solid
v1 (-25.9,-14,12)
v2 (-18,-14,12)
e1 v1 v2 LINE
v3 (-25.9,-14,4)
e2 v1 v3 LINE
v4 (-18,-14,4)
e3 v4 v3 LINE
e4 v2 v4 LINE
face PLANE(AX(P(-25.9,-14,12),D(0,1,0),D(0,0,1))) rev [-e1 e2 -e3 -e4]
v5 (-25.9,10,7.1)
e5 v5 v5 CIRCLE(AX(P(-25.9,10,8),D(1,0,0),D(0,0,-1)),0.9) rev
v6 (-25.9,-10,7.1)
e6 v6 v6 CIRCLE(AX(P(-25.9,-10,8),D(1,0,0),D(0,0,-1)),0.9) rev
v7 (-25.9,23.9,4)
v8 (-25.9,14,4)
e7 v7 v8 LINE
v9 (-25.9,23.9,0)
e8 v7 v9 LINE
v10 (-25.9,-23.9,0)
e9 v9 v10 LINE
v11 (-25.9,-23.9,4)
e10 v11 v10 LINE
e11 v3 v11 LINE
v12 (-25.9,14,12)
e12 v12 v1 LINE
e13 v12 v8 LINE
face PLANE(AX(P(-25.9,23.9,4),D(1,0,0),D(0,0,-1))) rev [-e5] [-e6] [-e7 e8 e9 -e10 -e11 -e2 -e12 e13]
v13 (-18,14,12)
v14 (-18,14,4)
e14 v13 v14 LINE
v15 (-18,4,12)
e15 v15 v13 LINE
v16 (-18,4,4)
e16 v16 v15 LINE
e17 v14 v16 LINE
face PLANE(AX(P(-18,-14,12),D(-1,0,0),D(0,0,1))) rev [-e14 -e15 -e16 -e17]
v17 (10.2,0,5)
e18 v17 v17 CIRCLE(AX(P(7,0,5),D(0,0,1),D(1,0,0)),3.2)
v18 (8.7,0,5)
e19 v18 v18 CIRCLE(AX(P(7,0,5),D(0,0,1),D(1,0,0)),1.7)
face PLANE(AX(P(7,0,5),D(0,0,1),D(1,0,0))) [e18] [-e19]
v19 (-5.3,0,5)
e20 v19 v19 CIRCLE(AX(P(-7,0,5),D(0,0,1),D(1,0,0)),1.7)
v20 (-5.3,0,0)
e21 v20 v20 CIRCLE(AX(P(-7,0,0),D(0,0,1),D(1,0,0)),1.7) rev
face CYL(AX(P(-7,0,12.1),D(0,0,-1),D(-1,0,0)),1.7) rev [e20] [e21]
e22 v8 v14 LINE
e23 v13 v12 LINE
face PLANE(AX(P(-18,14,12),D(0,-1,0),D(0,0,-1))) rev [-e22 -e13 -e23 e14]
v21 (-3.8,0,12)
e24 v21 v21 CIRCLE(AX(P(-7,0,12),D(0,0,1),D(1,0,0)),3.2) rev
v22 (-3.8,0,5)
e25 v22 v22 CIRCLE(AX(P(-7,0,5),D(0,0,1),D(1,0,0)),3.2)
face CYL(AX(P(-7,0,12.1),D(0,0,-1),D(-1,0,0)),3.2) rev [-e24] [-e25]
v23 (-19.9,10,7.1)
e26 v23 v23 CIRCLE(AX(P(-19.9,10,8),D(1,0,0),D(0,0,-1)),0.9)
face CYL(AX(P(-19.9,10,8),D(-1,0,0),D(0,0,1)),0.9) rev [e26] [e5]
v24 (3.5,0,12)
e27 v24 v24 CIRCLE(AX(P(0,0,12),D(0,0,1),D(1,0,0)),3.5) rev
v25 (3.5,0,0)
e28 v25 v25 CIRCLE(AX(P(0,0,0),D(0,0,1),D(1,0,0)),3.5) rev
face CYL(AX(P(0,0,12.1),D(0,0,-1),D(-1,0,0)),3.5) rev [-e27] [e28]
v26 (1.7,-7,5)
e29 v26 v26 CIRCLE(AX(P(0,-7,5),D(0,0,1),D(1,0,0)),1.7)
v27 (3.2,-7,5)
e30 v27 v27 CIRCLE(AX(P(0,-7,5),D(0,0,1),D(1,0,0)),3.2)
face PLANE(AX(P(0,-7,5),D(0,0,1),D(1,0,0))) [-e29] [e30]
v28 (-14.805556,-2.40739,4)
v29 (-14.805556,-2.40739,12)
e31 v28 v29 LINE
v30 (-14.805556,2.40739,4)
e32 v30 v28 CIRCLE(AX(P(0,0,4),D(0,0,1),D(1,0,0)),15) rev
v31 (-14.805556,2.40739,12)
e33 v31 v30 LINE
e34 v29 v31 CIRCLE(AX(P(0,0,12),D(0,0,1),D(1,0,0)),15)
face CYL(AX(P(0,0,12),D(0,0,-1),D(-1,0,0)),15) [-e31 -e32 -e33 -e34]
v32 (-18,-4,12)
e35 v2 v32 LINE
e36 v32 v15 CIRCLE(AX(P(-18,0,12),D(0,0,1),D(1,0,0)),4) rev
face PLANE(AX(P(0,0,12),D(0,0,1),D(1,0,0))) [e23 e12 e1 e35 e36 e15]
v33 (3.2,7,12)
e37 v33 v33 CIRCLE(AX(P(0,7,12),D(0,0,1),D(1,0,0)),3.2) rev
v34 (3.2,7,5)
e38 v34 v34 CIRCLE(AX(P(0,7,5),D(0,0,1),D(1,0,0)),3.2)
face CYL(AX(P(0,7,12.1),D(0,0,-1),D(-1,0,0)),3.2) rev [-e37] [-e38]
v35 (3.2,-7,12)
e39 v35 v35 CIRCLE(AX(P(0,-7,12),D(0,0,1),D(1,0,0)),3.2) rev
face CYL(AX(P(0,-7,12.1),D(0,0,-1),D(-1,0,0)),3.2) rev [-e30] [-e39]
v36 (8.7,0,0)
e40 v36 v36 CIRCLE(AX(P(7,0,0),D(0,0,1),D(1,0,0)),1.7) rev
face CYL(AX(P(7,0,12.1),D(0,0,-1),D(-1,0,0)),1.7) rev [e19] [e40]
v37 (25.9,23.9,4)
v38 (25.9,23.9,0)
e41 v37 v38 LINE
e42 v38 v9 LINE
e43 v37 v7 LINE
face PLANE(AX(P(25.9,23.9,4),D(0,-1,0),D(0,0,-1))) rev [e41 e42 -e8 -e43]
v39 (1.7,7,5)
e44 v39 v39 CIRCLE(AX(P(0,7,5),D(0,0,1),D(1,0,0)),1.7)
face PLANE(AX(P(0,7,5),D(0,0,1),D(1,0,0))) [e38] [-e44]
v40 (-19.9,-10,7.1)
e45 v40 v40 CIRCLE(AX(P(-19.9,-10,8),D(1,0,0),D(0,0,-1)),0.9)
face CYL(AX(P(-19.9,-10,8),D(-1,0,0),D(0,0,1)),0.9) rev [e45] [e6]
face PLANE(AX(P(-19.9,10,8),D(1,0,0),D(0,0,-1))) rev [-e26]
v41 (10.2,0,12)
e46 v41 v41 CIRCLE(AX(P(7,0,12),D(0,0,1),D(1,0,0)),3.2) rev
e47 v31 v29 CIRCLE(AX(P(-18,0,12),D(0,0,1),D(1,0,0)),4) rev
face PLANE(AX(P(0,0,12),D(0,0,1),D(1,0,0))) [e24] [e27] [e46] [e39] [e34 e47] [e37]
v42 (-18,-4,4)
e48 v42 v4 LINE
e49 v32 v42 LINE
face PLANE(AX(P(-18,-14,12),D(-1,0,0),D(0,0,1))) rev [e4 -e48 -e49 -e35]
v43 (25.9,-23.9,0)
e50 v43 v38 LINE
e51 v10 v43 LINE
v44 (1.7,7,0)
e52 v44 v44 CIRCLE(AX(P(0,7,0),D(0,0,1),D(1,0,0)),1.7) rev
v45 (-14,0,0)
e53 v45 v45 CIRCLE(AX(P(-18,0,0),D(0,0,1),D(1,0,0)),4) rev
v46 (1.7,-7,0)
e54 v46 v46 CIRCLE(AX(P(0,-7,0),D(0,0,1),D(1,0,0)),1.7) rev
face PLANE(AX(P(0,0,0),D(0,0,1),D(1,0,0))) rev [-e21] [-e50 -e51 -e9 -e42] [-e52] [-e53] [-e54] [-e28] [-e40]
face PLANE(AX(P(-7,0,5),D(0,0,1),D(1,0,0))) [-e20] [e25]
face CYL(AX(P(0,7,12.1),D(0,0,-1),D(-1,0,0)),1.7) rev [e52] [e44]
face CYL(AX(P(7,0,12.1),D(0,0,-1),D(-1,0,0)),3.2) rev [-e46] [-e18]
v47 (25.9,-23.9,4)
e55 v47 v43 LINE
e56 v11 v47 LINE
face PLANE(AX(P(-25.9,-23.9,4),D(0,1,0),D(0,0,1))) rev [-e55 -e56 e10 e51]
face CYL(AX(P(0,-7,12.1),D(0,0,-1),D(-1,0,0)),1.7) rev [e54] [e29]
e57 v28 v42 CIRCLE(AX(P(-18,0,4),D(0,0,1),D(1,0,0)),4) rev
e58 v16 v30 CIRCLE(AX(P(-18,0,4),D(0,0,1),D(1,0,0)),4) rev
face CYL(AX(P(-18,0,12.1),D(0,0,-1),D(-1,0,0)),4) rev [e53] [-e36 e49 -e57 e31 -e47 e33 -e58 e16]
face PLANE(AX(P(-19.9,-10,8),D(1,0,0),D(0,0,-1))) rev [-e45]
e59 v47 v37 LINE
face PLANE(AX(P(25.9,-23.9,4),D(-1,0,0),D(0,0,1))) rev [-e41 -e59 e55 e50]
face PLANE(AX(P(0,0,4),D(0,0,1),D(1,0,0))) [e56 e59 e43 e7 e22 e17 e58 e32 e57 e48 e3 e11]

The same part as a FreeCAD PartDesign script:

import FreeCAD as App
import Part
import Sketcher

doc = App.newDocument("Part")
body = doc.addObject("PartDesign::Body", "Body")

sketch1 = body.newObject("Sketcher::SketchObject", "Sketch")
sketch1.AttachmentSupport = (doc.getObject("XY_Plane"), [""])
sketch1.MapMode = "FlatFace"
sketch1.addGeometry(Part.LineSegment(App.Vector(-26, 24, 0), App.Vector(-26, -24, 0)), False)
sketch1.addGeometry(Part.LineSegment(App.Vector(-26, -24, 0), App.Vector(26, -24, 0)), False)
sketch1.addGeometry(Part.LineSegment(App.Vector(26, -24, 0), App.Vector(26, 24, 0)), False)
sketch1.addGeometry(Part.LineSegment(App.Vector(26, 24, 0), App.Vector(-26, 24, 0)), False)
sketch1.addConstraint(Sketcher.Constraint("Coincident", 0, 2, 1, 1))
sketch1.addConstraint(Sketcher.Constraint("Coincident", 1, 2, 2, 1))
sketch1.addConstraint(Sketcher.Constraint("Coincident", 2, 2, 3, 1))
sketch1.addConstraint(Sketcher.Constraint("Coincident", 3, 2, 0, 1))
sketch1.addConstraint(Sketcher.Constraint("Vertical", 0))
sketch1.addConstraint(Sketcher.Constraint("Horizontal", 1))
sketch1.addConstraint(Sketcher.Constraint("Vertical", 2))
sketch1.addConstraint(Sketcher.Constraint("Horizontal", 3))
sketch1.addConstraint(Sketcher.Constraint("Symmetric", 0, 2, 2, 2, -1, 1))
sketch1.addConstraint(Sketcher.Constraint("DistanceX", 1, 1, 1, 2, 51.8))
sketch1.addConstraint(Sketcher.Constraint("DistanceY", 0, 2, 0, 1, 47.8))
pad1 = body.newObject("PartDesign::Pad", "Pad")
pad1.Profile = sketch1
pad1.Length = 4

sketch2 = body.newObject("Sketcher::SketchObject", "Sketch001")
sketch2.AttachmentSupport = (doc.getObject("XY_Plane"), [""])
sketch2.MapMode = "FlatFace"
sketch2.AttachmentOffset = App.Placement(App.Vector(0, 0, 3.9), App.Rotation())
sketch2.addGeometry(Part.Circle(App.Vector(0, 0, 0), App.Vector(0, 0, 1), 15), False)
sketch2.addConstraint(Sketcher.Constraint("Coincident", 0, 3, -1, 1))
sketch2.addConstraint(Sketcher.Constraint("Diameter", 0, 30.0))
pad2 = body.newObject("PartDesign::Pad", "Pad001")
pad2.Profile = sketch2
pad2.Length = 8.1

sketch3 = body.newObject("Sketcher::SketchObject", "Sketch002")
sketch3.AttachmentSupport = (doc.getObject("XY_Plane"), [""])
sketch3.MapMode = "FlatFace"
sketch3.AttachmentOffset = App.Placement(App.Vector(0, 0, 3.9), App.Rotation())
sketch3.addGeometry(Part.LineSegment(App.Vector(-26, 14, 0), App.Vector(-26, -14, 0)), False)
sketch3.addGeometry(Part.LineSegment(App.Vector(-26, -14, 0), App.Vector(-18, -14, 0)), False)
sketch3.addGeometry(Part.LineSegment(App.Vector(-18, -14, 0), App.Vector(-18, 14, 0)), False)
sketch3.addGeometry(Part.LineSegment(App.Vector(-18, 14, 0), App.Vector(-26, 14, 0)), False)
sketch3.addConstraint(Sketcher.Constraint("Coincident", 0, 2, 1, 1))
sketch3.addConstraint(Sketcher.Constraint("Coincident", 1, 2, 2, 1))
sketch3.addConstraint(Sketcher.Constraint("Coincident", 2, 2, 3, 1))
sketch3.addConstraint(Sketcher.Constraint("Coincident", 3, 2, 0, 1))
sketch3.addConstraint(Sketcher.Constraint("Vertical", 0))
sketch3.addConstraint(Sketcher.Constraint("Horizontal", 1))
sketch3.addConstraint(Sketcher.Constraint("Vertical", 2))
sketch3.addConstraint(Sketcher.Constraint("Horizontal", 3))
sketch3.addConstraint(Sketcher.Constraint("DistanceY", 0, 2, 0, 1, 28.0))
sketch3.addConstraint(Sketcher.Constraint("DistanceX", 1, 1, 1, 2, 7.9))
sketch3.addConstraint(Sketcher.Constraint("DistanceY", 0, 2, -1, 1, 14.0))
sketch3.addConstraint(Sketcher.Constraint("DistanceX", 1, 2, -1, 1, 18.0))
pad3 = body.newObject("PartDesign::Pad", "Pad002")
pad3.Profile = sketch3
pad3.Length = 8.1

sketch4 = body.newObject("Sketcher::SketchObject", "Sketch003")
sketch4.AttachmentSupport = (doc.getObject("XY_Plane"), [""])
sketch4.MapMode = "FlatFace"
sketch4.AttachmentOffset = App.Placement(App.Vector(0, 0, -0.1), App.Rotation())
sketch4.addGeometry(Part.Circle(App.Vector(-18, 0, 0), App.Vector(0, 0, 1), 4), False)
sketch4.addConstraint(Sketcher.Constraint("PointOnObject", 0, 3, -1))
sketch4.addConstraint(Sketcher.Constraint("Diameter", 0, 8.0))
sketch4.addConstraint(Sketcher.Constraint("DistanceX", 0, 3, -1, 1, 18.0))
pocket1 = body.newObject("PartDesign::Pocket", "Pocket")
pocket1.Profile = sketch4
pocket1.Length = 12.2
pocket1.Reversed = True

sketch5 = body.newObject("Sketcher::SketchObject", "Sketch004")
sketch5.AttachmentSupport = (doc.getObject("XY_Plane"), [""])
sketch5.MapMode = "FlatFace"
sketch5.AttachmentOffset = App.Placement(App.Vector(0, 0, -0.1), App.Rotation())
sketch5.addGeometry(Part.Circle(App.Vector(0, 0, 0), App.Vector(0, 0, 1), 3.5), False)
sketch5.addConstraint(Sketcher.Constraint("Coincident", 0, 3, -1, 1))
sketch5.addConstraint(Sketcher.Constraint("Diameter", 0, 7.0))
pocket2 = body.newObject("PartDesign::Pocket", "Pocket001")
pocket2.Profile = sketch5
pocket2.Length = 12.2
pocket2.Reversed = True

sketch6 = body.newObject("Sketcher::SketchObject", "Sketch005")
sketch6.AttachmentSupport = (doc.getObject("XY_Plane"), [""])
sketch6.MapMode = "FlatFace"
sketch6.AttachmentOffset = App.Placement(App.Vector(0, 0, -0.1), App.Rotation())
sketch6.addGeometry(Part.Circle(App.Vector(7, 0, 0), App.Vector(0, 0, 1), 1.7), False)
sketch6.addConstraint(Sketcher.Constraint("PointOnObject", 0, 3, -1))
sketch6.addConstraint(Sketcher.Constraint("Diameter", 0, 3.4))
sketch6.addConstraint(Sketcher.Constraint("DistanceX", -1, 1, 0, 3, 7.0))
pocket3 = body.newObject("PartDesign::Pocket", "Pocket002")
pocket3.Profile = sketch6
pocket3.Length = 12.2
pocket3.Reversed = True

sketch7 = body.newObject("Sketcher::SketchObject", "Sketch006")
sketch7.AttachmentSupport = (doc.getObject("XY_Plane"), [""])
sketch7.MapMode = "FlatFace"
sketch7.AttachmentOffset = App.Placement(App.Vector(0, 0, -0.1), App.Rotation())
sketch7.addGeometry(Part.Circle(App.Vector(0, 7, 0), App.Vector(0, 0, 1), 1.7), False)
sketch7.addConstraint(Sketcher.Constraint("PointOnObject", 0, 3, -2))
sketch7.addConstraint(Sketcher.Constraint("Diameter", 0, 3.4))
sketch7.addConstraint(Sketcher.Constraint("DistanceY", -1, 1, 0, 3, 7.0))
pocket4 = body.newObject("PartDesign::Pocket", "Pocket003")
pocket4.Profile = sketch7
pocket4.Length = 12.2
pocket4.Reversed = True

sketch8 = body.newObject("Sketcher::SketchObject", "Sketch007")
sketch8.AttachmentSupport = (doc.getObject("XY_Plane"), [""])
sketch8.MapMode = "FlatFace"
sketch8.AttachmentOffset = App.Placement(App.Vector(0, 0, -0.1), App.Rotation())
sketch8.addGeometry(Part.Circle(App.Vector(-7, 0, 0), App.Vector(0, 0, 1), 1.7), False)
sketch8.addConstraint(Sketcher.Constraint("PointOnObject", 0, 3, -1))
sketch8.addConstraint(Sketcher.Constraint("Diameter", 0, 3.4))
sketch8.addConstraint(Sketcher.Constraint("DistanceX", 0, 3, -1, 1, 7.0))
pocket5 = body.newObject("PartDesign::Pocket", "Pocket004")
pocket5.Profile = sketch8
pocket5.Length = 12.2
pocket5.Reversed = True

sketch9 = body.newObject("Sketcher::SketchObject", "Sketch008")
sketch9.AttachmentSupport = (doc.getObject("XY_Plane"), [""])
sketch9.MapMode = "FlatFace"
sketch9.AttachmentOffset = App.Placement(App.Vector(0, 0, -0.1), App.Rotation())
sketch9.addGeometry(Part.Circle(App.Vector(0, -7, 0), App.Vector(0, 0, 1), 1.7), False)
sketch9.addConstraint(Sketcher.Constraint("PointOnObject", 0, 3, -2))
sketch9.addConstraint(Sketcher.Constraint("Diameter", 0, 3.4))
sketch9.addConstraint(Sketcher.Constraint("DistanceY", 0, 3, -1, 1, 7.0))
pocket6 = body.newObject("PartDesign::Pocket", "Pocket005")
pocket6.Profile = sketch9
pocket6.Length = 12.2
pocket6.Reversed = True

sketch10 = body.newObject("Sketcher::SketchObject", "Sketch009")
sketch10.AttachmentSupport = (doc.getObject("XY_Plane"), [""])
sketch10.MapMode = "FlatFace"
sketch10.AttachmentOffset = App.Placement(App.Vector(0, 0, 5), App.Rotation())
sketch10.addGeometry(Part.Circle(App.Vector(7, 0, 0), App.Vector(0, 0, 1), 3.2), False)
sketch10.addConstraint(Sketcher.Constraint("PointOnObject", 0, 3, -1))
sketch10.addConstraint(Sketcher.Constraint("Diameter", 0, 6.4))
sketch10.addConstraint(Sketcher.Constraint("DistanceX", -1, 1, 0, 3, 7.0))
pocket7 = body.newObject("PartDesign::Pocket", "Pocket006")
pocket7.Profile = sketch10
pocket7.Length = 7.1
pocket7.Reversed = True

sketch11 = body.newObject("Sketcher::SketchObject", "Sketch010")
sketch11.AttachmentSupport = (doc.getObject("XY_Plane"), [""])
sketch11.MapMode = "FlatFace"
sketch11.AttachmentOffset = App.Placement(App.Vector(0, 0, 5), App.Rotation())
sketch11.addGeometry(Part.Circle(App.Vector(0, 7, 0), App.Vector(0, 0, 1), 3.2), False)
sketch11.addConstraint(Sketcher.Constraint("PointOnObject", 0, 3, -2))
sketch11.addConstraint(Sketcher.Constraint("Diameter", 0, 6.4))
sketch11.addConstraint(Sketcher.Constraint("DistanceY", -1, 1, 0, 3, 7.0))
pocket8 = body.newObject("PartDesign::Pocket", "Pocket007")
pocket8.Profile = sketch11
pocket8.Length = 7.1
pocket8.Reversed = True

sketch12 = body.newObject("Sketcher::SketchObject", "Sketch011")
sketch12.AttachmentSupport = (doc.getObject("XY_Plane"), [""])
sketch12.MapMode = "FlatFace"
sketch12.AttachmentOffset = App.Placement(App.Vector(0, 0, 5), App.Rotation())
sketch12.addGeometry(Part.Circle(App.Vector(-7, 0, 0), App.Vector(0, 0, 1), 3.2), False)
sketch12.addConstraint(Sketcher.Constraint("PointOnObject", 0, 3, -1))
sketch12.addConstraint(Sketcher.Constraint("Diameter", 0, 6.4))
sketch12.addConstraint(Sketcher.Constraint("DistanceX", 0, 3, -1, 1, 7.0))
pocket9 = body.newObject("PartDesign::Pocket", "Pocket008")
pocket9.Profile = sketch12
pocket9.Length = 7.1
pocket9.Reversed = True

sketch13 = body.newObject("Sketcher::SketchObject", "Sketch012")
sketch13.AttachmentSupport = (doc.getObject("XY_Plane"), [""])
sketch13.MapMode = "FlatFace"
sketch13.AttachmentOffset = App.Placement(App.Vector(0, 0, 5), App.Rotation())
sketch13.addGeometry(Part.Circle(App.Vector(0, -7, 0), App.Vector(0, 0, 1), 3.2), False)
sketch13.addConstraint(Sketcher.Constraint("PointOnObject", 0, 3, -2))
sketch13.addConstraint(Sketcher.Constraint("Diameter", 0, 6.4))
sketch13.addConstraint(Sketcher.Constraint("DistanceY", 0, 3, -1, 1, 7.0))
pocket10 = body.newObject("PartDesign::Pocket", "Pocket009")
pocket10.Profile = sketch13
pocket10.Length = 7.1
pocket10.Reversed = True

sketch14 = body.newObject("Sketcher::SketchObject", "Sketch013")
sketch14.AttachmentSupport = (doc.getObject("YZ_Plane"), [""])
sketch14.MapMode = "FlatFace"
sketch14.AttachmentOffset = App.Placement(App.Vector(0, 0, -26), App.Rotation())
sketch14.addGeometry(Part.Circle(App.Vector(-10, 8, 0), App.Vector(0, 0, 1), 0.9), False)
sketch14.addConstraint(Sketcher.Constraint("Diameter", 0, 1.8))
sketch14.addConstraint(Sketcher.Constraint("DistanceX", 0, 3, -1, 1, 10.0))
sketch14.addConstraint(Sketcher.Constraint("DistanceY", -1, 1, 0, 3, 8.0))
pocket11 = body.newObject("PartDesign::Pocket", "Pocket010")
pocket11.Profile = sketch14
pocket11.Length = 6.1
pocket11.Reversed = True

sketch15 = body.newObject("Sketcher::SketchObject", "Sketch014")
sketch15.AttachmentSupport = (doc.getObject("YZ_Plane"), [""])
sketch15.MapMode = "FlatFace"
sketch15.AttachmentOffset = App.Placement(App.Vector(0, 0, -26), App.Rotation())
sketch15.addGeometry(Part.Circle(App.Vector(10, 8, 0), App.Vector(0, 0, 1), 0.9), False)
sketch15.addConstraint(Sketcher.Constraint("Diameter", 0, 1.8))
sketch15.addConstraint(Sketcher.Constraint("DistanceX", -1, 1, 0, 3, 10.0))
sketch15.addConstraint(Sketcher.Constraint("DistanceY", -1, 1, 0, 3, 8.0))
pocket12 = body.newObject("PartDesign::Pocket", "Pocket011")
pocket12.Profile = sketch15
pocket12.Length = 6.1
pocket12.Reversed = True

doc.recompute()
